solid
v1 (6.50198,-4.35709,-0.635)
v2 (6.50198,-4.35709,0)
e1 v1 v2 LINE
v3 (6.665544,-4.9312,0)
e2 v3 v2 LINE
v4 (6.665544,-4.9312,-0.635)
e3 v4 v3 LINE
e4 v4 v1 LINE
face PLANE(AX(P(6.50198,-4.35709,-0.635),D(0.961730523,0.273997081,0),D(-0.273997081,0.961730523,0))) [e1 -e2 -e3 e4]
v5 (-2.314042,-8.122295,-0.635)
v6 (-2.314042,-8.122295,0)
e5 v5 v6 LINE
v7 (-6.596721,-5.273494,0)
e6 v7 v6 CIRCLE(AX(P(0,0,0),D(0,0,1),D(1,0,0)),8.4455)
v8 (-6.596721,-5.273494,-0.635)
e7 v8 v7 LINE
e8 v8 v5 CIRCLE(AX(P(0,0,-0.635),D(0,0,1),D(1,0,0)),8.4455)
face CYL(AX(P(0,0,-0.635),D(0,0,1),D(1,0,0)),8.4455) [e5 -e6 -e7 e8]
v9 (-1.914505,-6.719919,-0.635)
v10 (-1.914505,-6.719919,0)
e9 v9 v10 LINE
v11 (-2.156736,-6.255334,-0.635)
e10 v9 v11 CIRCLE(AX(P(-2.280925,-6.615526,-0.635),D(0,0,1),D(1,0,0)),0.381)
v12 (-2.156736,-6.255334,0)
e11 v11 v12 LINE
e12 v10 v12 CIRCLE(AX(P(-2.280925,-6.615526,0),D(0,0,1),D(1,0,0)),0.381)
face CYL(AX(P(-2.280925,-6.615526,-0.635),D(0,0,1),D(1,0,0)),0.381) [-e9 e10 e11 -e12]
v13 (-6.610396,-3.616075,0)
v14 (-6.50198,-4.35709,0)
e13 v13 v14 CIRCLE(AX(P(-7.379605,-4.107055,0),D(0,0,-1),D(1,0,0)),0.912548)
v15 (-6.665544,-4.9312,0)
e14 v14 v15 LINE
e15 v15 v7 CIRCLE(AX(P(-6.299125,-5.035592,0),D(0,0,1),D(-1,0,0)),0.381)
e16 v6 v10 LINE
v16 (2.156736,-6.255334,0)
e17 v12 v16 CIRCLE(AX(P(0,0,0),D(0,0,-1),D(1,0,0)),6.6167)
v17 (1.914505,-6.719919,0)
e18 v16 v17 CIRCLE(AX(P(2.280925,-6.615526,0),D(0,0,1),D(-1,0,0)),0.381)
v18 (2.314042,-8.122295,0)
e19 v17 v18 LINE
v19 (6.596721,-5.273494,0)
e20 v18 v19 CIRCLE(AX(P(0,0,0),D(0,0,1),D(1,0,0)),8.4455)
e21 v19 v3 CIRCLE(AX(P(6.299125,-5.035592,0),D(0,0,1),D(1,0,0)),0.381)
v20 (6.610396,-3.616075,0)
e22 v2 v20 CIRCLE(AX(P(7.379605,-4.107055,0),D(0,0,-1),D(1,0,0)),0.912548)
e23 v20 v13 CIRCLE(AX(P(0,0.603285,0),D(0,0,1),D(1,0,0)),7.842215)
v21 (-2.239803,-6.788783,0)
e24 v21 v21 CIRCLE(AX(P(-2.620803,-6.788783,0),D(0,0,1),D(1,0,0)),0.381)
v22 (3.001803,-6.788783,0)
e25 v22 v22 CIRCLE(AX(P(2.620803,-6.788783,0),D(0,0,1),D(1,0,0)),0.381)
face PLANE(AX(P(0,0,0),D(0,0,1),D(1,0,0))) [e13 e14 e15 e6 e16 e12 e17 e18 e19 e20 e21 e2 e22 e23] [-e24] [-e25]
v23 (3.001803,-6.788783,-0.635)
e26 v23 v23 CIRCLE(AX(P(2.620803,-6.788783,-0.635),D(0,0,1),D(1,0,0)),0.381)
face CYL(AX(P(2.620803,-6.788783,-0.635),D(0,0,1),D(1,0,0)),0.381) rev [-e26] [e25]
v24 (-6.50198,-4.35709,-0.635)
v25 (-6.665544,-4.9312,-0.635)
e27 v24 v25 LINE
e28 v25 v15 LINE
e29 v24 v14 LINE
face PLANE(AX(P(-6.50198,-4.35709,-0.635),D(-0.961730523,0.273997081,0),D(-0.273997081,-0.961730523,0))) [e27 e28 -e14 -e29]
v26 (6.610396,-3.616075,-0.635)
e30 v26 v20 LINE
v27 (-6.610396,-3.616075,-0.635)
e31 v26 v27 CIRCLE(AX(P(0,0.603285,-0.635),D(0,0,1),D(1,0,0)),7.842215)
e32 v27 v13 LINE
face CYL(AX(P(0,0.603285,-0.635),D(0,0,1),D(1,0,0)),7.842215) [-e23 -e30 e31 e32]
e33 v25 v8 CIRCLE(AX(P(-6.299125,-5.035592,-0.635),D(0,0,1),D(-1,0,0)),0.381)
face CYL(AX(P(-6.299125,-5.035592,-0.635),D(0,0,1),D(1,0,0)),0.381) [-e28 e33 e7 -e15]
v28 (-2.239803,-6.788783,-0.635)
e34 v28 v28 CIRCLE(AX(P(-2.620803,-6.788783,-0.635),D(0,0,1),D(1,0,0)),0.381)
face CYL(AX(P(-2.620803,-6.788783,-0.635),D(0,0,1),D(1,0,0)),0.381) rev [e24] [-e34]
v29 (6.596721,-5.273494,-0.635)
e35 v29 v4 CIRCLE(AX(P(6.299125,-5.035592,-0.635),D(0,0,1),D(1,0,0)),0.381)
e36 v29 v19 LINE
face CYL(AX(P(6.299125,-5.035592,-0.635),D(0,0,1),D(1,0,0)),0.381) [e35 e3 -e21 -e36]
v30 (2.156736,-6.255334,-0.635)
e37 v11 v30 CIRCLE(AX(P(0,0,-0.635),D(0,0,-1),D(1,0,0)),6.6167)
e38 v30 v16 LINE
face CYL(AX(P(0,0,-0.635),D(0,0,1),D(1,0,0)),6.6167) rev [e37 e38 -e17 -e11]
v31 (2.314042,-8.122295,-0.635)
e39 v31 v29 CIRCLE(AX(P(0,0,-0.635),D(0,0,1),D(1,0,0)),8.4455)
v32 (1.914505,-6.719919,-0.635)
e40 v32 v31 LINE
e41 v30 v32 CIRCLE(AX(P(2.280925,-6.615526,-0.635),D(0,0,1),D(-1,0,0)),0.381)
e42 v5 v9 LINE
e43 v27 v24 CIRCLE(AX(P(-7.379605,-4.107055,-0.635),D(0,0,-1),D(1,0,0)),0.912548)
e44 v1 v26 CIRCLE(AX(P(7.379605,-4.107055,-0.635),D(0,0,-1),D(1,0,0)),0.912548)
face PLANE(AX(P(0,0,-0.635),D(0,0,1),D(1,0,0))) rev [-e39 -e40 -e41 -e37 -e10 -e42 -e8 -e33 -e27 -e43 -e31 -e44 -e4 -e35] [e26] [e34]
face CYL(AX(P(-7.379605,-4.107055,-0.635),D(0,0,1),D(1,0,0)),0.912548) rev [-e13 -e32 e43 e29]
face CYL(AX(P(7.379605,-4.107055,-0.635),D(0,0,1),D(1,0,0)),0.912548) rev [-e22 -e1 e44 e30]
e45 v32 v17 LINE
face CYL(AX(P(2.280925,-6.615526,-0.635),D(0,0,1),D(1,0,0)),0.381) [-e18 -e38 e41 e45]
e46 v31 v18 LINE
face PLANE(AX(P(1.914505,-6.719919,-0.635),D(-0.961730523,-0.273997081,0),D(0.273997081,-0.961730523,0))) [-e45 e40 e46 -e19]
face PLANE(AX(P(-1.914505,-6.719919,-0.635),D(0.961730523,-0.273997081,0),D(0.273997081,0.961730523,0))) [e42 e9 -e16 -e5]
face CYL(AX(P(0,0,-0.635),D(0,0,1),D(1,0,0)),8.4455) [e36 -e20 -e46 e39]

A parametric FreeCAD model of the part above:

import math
import FreeCAD as App
import Part
import Sketcher
from FreeCAD import Vector
Q = App.Units.Quantity

doc = App.newDocument("Part")
params = doc.addObject("Spreadsheet::Sheet", "Params")
for row, (alias, value) in enumerate([
    ("sketch1_diameter", "0.03 in"),
    ("pad1_length", "0.025 in"),
], start=1):
    params.set(f"A{row}", alias)
    params.set(f"B{row}", "=" + value)
    params.setAlias(f"B{row}", alias)

body = doc.addObject("PartDesign::Body", "Body")

# Sketch on XY plane
sketch1 = body.newObject("Sketcher::SketchObject", "Sketch")
sketch1.AttachmentSupport = (doc.getObject("XY_Plane"), [""])
sketch1.MapMode = "FlatFace"
sketch1.addGeometry([
    Part.LineSegment(Vector(-2.31, -8.12, 0), Vector(-1.91, -6.72, 0)),  # 0
    Part.ArcOfCircle(Part.Circle(Vector(-2.28, -6.62, 0), Vector(0, 0, 1), 0.38), math.radians(-16), math.radians(71)),  # 1
    Part.ArcOfCircle(Part.Circle(Vector(0, 0, 0), Vector(0, 0, 1), 6.62), math.radians(-71), math.radians(251)),  # 2
    Part.ArcOfCircle(Part.Circle(Vector(2.28, -6.62, 0), Vector(0, 0, 1), 0.38), math.radians(109), math.radians(196)),  # 3
    Part.LineSegment(Vector(1.91, -6.72, 0), Vector(2.31, -8.12, 0)),  # 4
    Part.ArcOfCircle(Part.Circle(Vector(0, 0, 0), Vector(0, 0, 1), 8.45), math.radians(-74), math.radians(-39)),  # 5
    Part.ArcOfCircle(Part.Circle(Vector(6.3, -5.04, 0), Vector(0, 0, 1), 0.38), math.radians(-39), math.radians(16)),  # 6
    Part.LineSegment(Vector(6.67, -4.93, 0), Vector(6.5, -4.36, 0)),  # 7
    Part.ArcOfCircle(Part.Circle(Vector(7.38, -4.11, 0), Vector(0, 0, 1), 0.91), math.radians(147), math.radians(196)),  # 8
    Part.ArcOfCircle(Part.Circle(Vector(0, 0.6, 0), Vector(0, 0, 1), 7.84), math.radians(-33), math.radians(213)),  # 9
    Part.ArcOfCircle(Part.Circle(Vector(-7.38, -4.11, 0), Vector(0, 0, 1), 0.91), math.radians(-16), math.radians(33)),  # 10
    Part.LineSegment(Vector(-6.5, -4.36, 0), Vector(-6.67, -4.93, 0)),  # 11
    Part.ArcOfCircle(Part.Circle(Vector(-6.3, -5.04, 0), Vector(0, 0, 1), 0.38), math.radians(164), math.radians(219)),  # 12
    Part.ArcOfCircle(Part.Circle(Vector(0, 0, 0), Vector(0, 0, 1), 8.45), math.radians(-141), math.radians(-106)),  # 13
    Part.Circle(Vector(2.62, -6.79, 0), Vector(0, 0, 1), 0.38),  # 14
    Part.Circle(Vector(-2.62, -6.79, 0), Vector(0, 0, 1), 0.38),  # 15
], False)
sketch1.addConstraint([
    Sketcher.Constraint("Tangent", 0, 2, 1, 1),
    Sketcher.Constraint("Tangent", 1, 2, 2, 2),
    Sketcher.Constraint("Tangent", 2, 1, 3, 1),
    Sketcher.Constraint("Tangent", 3, 2, 4, 1),
    Sketcher.Constraint("Coincident", 4, 2, 5, 1),
    Sketcher.Constraint("Tangent", 5, 2, 6, 1),
    Sketcher.Constraint("Tangent", 6, 2, 7, 1),
    Sketcher.Constraint("Tangent", 7, 2, 8, 2),
    Sketcher.Constraint("Tangent", 8, 1, 9, 1),
    Sketcher.Constraint("Tangent", 9, 2, 10, 2),
    Sketcher.Constraint("Tangent", 10, 1, 11, 1),
    Sketcher.Constraint("Tangent", 11, 2, 12, 1),
    Sketcher.Constraint("Tangent", 12, 2, 13, 1),
    Sketcher.Constraint("Coincident", 13, 2, 0, 1),
    Sketcher.Constraint("Coincident", 2, 3, -1, 1),
    Sketcher.Constraint("Coincident", 5, 3, -1, 1),
    Sketcher.Constraint("Coincident", 13, 3, -1, 1),
    Sketcher.Constraint("Equal", 1, 3),
    Sketcher.Constraint("Equal", 3, 6),
    Sketcher.Constraint("Equal", 8, 10),
    Sketcher.Constraint("Equal", 6, 12),
    Sketcher.Constraint("Equal", 5, 13),
    Sketcher.Constraint("Equal", 12, 14),
    Sketcher.Constraint("Equal", 14, 15),
    Sketcher.Constraint("Symmetric", 8, 3, 10, 3, -2),
    Sketcher.Constraint("Symmetric", 14, 3, 15, 3, -2),
    Sketcher.Constraint("Symmetric", 0, 2, 3, 2, -2),
    Sketcher.Constraint("Parallel", 4, 7),
    Sketcher.Constraint("Parallel", 0, 11),
    Sketcher.Constraint("Diameter", 14, Q("0.03 in")),
    Sketcher.Constraint("Radius", 2, Q("0.2605 in")),
    Sketcher.Constraint("Radius", 5, Q("0.3325 in")),
    Sketcher.Constraint("DistanceX", 1, 3, -1, 1, Q("0.0898002 in")),
    Sketcher.Constraint("Radius", 8, 0.912548),
    Sketcher.Constraint("Radius", 9, 7.842215),
    Sketcher.Constraint("DistanceY", 6, 2, -1, 1, 4.9312),
    Sketcher.Constraint("DistanceX", 3, 3, 6, 3, 4.0182),
    Sketcher.Constraint("DistanceX", 14, 3, 8, 3, 4.758802),
    Sketcher.Constraint("DistanceX", 15, 3, 0, 2, 0.706298),
    Sketcher.Constraint("DistanceY", 14, 3, 6, 3, 1.753191),
])
sketch1.setExpression("Constraints[29]", "Params.sketch1_diameter")
pad1 = body.newObject("PartDesign::Pad", "Pad")
pad1.Profile = sketch1
pad1.setExpression("Length", "Params.pad1_length")
pad1.Reversed = True

doc.recompute()
